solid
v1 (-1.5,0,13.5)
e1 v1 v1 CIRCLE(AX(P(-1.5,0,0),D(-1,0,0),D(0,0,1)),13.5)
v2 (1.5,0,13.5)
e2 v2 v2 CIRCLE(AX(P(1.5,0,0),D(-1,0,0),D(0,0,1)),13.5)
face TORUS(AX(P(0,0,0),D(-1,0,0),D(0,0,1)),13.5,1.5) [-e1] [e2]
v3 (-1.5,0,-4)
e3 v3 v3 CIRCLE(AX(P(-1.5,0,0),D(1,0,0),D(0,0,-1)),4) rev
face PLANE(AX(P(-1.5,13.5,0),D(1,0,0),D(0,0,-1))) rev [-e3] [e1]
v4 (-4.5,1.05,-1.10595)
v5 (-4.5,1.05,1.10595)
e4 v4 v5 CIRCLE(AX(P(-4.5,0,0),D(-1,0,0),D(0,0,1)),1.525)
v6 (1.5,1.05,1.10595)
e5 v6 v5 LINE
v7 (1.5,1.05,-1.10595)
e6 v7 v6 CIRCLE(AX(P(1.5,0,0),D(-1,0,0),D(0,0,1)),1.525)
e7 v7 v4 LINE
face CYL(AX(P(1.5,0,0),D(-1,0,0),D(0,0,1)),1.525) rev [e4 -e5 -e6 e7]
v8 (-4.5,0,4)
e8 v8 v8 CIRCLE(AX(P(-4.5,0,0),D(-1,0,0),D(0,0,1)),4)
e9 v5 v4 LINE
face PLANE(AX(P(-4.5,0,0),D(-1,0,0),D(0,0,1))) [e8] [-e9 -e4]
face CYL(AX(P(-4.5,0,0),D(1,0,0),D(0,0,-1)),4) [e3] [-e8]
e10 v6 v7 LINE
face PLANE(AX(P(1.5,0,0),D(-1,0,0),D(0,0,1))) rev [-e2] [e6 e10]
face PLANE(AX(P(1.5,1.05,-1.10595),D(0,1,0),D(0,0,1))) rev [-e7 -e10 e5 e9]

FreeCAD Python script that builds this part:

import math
import FreeCAD as App
import Part
import Sketcher
from FreeCAD import Vector

doc = App.newDocument("Part")
body = doc.addObject("PartDesign::Body", "Body")

# Sketch on XY plane
sketch1 = doc.addObject("Sketcher::SketchObject", "Sketch")
body.addObject(sketch1)
sketch1.AttachmentSupport = (doc.XY_Plane, [""])
sketch1.MapMode = "FlatFace"
sketch1.addGeometry([
    Part.LineSegment(Vector(-1.5, 13.5, 0), Vector(-1.5, 0, 0)),
    Part.LineSegment(Vector(-1.5, 0, 0), Vector(1.5, 0, 0)),
    Part.LineSegment(Vector(1.5, 0, 0), Vector(1.5, 13.5, 0)),
    Part.ArcOfCircle(Part.Circle(Vector(0, 13.5, 0), Vector(0, 0, 1), 1.5), math.radians(0), math.radians(180)),
], False)
sketch1.addConstraint([
    Sketcher.Constraint("Coincident", 0, 2, 1, 1),
    Sketcher.Constraint("Coincident", 1, 2, 2, 1),
    Sketcher.Constraint("Tangent", 2, 2, 3, 1),
    Sketcher.Constraint("Tangent", 3, 2, 0, 1),
    Sketcher.Constraint("Vertical", 0),
    Sketcher.Constraint("Horizontal", 1),
    Sketcher.Constraint("Vertical", 2),
    Sketcher.Constraint("Symmetric", 0, 2, 1, 2, -1, 1),
    Sketcher.Constraint("Radius", 3, 1.5),
    Sketcher.Constraint("DistanceY", 0, 2, 0, 1, 13.5),
])
revolution = doc.addObject("PartDesign::Revolution", "Revolution")
body.addObject(revolution)
revolution.Profile = sketch1
revolution.ReferenceAxis = (sketch1, ["H_Axis"])
revolution.Angle = 360

# Sketch on YZ plane
sketch2 = doc.addObject("Sketcher::SketchObject", "Sketch001")
body.addObject(sketch2)
sketch2.AttachmentSupport = (doc.YZ_Plane, [""])
sketch2.MapMode = "FlatFace"
sketch2.AttachmentOffset = App.Placement(Vector(0, 0, -1.5), App.Rotation())
sketch2.addGeometry(Part.Circle(Vector(0, 0, 0), Vector(0, 0, 1), 4), False)
sketch2.addConstraint([
    Sketcher.Constraint("Coincident", 0, 3, -1, 1),
    Sketcher.Constraint("Diameter", 0, 8.0),
])
pad1 = doc.addObject("PartDesign::Pad", "Pad")
body.addObject(pad1)
pad1.Profile = sketch2
pad1.Length = 3
pad1.Reversed = True

# Sketch on YZ plane
sketch3 = doc.addObject("Sketcher::SketchObject", "Sketch002")
body.addObject(sketch3)
sketch3.AttachmentSupport = (doc.YZ_Plane, [""])
sketch3.MapMode = "FlatFace"
sketch3.AttachmentOffset = App.Placement(Vector(0, 0, -4.5), App.Rotation())
sketch3.addGeometry([
    Part.LineSegment(Vector(1.05, 1.10595, 0), Vector(1.05, -1.10595, 0)),
    Part.ArcOfCircle(Part.Circle(Vector(0, 0, 0), Vector(0, 0, 1), 1.525), math.radians(46.486569), math.radians(313.513431)),
], False)
sketch3.addConstraint([
    Sketcher.Constraint("Coincident", 0, 1, 1, 1),
    Sketcher.Constraint("Coincident", 1, 2, 0, 2),
    Sketcher.Constraint("Vertical", 0),
    Sketcher.Constraint("Coincident", 1, 3, -1, 1),
    Sketcher.Constraint("Radius", 1, 1.525),
    Sketcher.Constraint("DistanceX", -1, 1, 0, 1, 1.05),
])
pocket1 = doc.addObject("PartDesign::Pocket", "Pocket")
body.addObject(pocket1)
pocket1.Profile = sketch3
pocket1.Type = "ThroughAll"
pocket1.Reversed = True

doc.recompute()
